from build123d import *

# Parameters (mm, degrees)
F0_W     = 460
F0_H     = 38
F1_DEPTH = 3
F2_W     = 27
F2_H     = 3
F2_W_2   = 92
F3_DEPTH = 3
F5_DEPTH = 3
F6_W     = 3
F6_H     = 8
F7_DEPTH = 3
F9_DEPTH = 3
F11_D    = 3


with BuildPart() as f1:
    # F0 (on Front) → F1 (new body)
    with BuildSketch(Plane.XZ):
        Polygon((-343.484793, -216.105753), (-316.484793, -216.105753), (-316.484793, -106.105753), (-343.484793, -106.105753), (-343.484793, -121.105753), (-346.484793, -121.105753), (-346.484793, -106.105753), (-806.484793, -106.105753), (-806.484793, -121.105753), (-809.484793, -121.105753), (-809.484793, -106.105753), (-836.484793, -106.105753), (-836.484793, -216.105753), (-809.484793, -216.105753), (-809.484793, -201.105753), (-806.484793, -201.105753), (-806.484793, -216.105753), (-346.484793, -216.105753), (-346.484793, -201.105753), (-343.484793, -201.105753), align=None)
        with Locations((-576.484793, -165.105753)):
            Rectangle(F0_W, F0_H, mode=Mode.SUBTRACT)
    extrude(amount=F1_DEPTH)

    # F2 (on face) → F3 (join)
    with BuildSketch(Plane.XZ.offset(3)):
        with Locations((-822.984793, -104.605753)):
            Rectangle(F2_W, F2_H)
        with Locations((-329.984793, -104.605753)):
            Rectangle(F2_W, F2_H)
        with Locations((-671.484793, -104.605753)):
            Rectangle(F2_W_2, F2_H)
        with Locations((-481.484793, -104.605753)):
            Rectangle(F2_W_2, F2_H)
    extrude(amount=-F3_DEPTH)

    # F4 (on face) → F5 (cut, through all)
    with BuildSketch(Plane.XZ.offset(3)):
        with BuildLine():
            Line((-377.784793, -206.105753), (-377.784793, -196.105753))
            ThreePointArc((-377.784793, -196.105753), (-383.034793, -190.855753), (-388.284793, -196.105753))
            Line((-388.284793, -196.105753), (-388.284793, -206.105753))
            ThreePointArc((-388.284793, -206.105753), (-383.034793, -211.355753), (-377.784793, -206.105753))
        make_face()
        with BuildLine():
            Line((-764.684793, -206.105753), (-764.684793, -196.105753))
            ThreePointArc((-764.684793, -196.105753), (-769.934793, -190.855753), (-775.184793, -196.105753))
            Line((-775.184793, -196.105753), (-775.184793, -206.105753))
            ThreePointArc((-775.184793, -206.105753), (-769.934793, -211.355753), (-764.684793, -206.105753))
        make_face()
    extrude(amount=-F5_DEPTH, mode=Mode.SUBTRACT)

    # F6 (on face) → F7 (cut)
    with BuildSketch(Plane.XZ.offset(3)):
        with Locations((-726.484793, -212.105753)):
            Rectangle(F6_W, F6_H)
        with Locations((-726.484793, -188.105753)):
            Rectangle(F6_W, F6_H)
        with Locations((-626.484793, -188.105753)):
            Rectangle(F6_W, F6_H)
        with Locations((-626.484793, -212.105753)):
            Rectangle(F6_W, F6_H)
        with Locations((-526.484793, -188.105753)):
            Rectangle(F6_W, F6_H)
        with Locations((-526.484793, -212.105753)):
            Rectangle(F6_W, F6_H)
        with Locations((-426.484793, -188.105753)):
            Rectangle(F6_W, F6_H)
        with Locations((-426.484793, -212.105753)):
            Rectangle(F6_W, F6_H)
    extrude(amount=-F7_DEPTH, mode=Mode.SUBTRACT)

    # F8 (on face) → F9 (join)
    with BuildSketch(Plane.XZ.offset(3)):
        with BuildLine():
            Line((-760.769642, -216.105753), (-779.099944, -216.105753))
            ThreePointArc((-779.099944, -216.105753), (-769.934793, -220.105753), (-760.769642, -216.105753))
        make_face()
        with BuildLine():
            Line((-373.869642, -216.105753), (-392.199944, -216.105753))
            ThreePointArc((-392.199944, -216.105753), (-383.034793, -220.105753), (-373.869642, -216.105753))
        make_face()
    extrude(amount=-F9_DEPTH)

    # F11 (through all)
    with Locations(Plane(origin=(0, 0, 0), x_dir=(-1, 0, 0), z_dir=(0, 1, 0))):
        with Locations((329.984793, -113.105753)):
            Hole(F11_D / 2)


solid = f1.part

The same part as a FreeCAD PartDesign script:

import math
import FreeCAD as App
import Part
import Sketcher
Q = App.Units.Quantity


def add_polygon(sketch, points):
    """Adds a closed chain of lines whose ends are joined by coincident constraints."""
    first, n = sketch.GeometryCount, len(points)
    for a, b in zip(points, points[1:] + points[:1]):
        sketch.addGeometry(Part.LineSegment(App.Vector(*a, 0), App.Vector(*b, 0)), False)
    for i in range(n):
        sketch.addConstraint(Sketcher.Constraint("Coincident", first + i, 2, first + (i + 1) % n, 1))

doc = App.newDocument("Part")
body = doc.addObject("PartDesign::Body", "Body")

# Sketch on XZ plane
sketch1 = body.newObject("Sketcher::SketchObject", "Sketch")
sketch1.AttachmentSupport = (doc.getObject("XZ_Plane"), [""])
sketch1.MapMode = "FlatFace"
add_polygon(sketch1, [(-343.484793, -216.105753), (-316.484793, -216.105753), (-316.484793, -106.105753), (-343.484793, -106.105753), (-343.484793, -121.105753), (-346.484793, -121.105753), (-346.484793, -106.105753), (-806.484793, -106.105753), (-806.484793, -121.105753), (-809.484793, -121.105753), (-809.484793, -106.105753), (-836.484793, -106.105753), (-836.484793, -216.105753), (-809.484793, -216.105753), (-809.484793, -201.105753), (-806.484793, -201.105753), (-806.484793, -216.105753), (-346.484793, -216.105753), (-346.484793, -201.105753), (-343.484793, -201.105753)])  # lines 0-19
add_polygon(sketch1, [(-346.484793, -184.105753), (-806.484793, -184.105753), (-806.484793, -146.105753), (-346.484793, -146.105753)])  # lines 20-23
sketch1.addConstraint([
    Sketcher.Constraint("Horizontal", 0),
    Sketcher.Constraint("Vertical", 1),
    Sketcher.Constraint("Horizontal", 2),
    Sketcher.Constraint("Vertical", 3),
    Sketcher.Constraint("Horizontal", 4),
    Sketcher.Constraint("Vertical", 5),
    Sketcher.Constraint("Horizontal", 6),
    Sketcher.Constraint("Vertical", 7),
    Sketcher.Constraint("Horizontal", 8),
    Sketcher.Constraint("Vertical", 9),
    Sketcher.Constraint("Horizontal", 10),
    Sketcher.Constraint("Vertical", 11),
    Sketcher.Constraint("Horizontal", 12),
    Sketcher.Constraint("Vertical", 13),
    Sketcher.Constraint("Horizontal", 14),
    Sketcher.Constraint("Vertical", 15),
    Sketcher.Constraint("Horizontal", 16),
    Sketcher.Constraint("Vertical", 17),
    Sketcher.Constraint("Horizontal", 18),
    Sketcher.Constraint("Vertical", 19),
    Sketcher.Constraint("Horizontal", 20),
    Sketcher.Constraint("Vertical", 21),
    Sketcher.Constraint("Horizontal", 22),
    Sketcher.Constraint("Vertical", 23),
    Sketcher.Constraint("Horizontal", 2, 2, 5, 2),
    Sketcher.Constraint("Horizontal", 4, 2, 7, 2),
    Sketcher.Constraint("Horizontal", 6, 2, 9, 2),
    Sketcher.Constraint("Horizontal", 0, 2, 11, 2),
    Sketcher.Constraint("Horizontal", 12, 2, 15, 2),
    Sketcher.Constraint("Horizontal", 14, 2, 17, 2),
    Sketcher.Constraint("Vertical", 9, 2, 12, 2),
    Sketcher.Constraint("Vertical", 7, 2, 14, 2),
    Sketcher.Constraint("Vertical", 5, 2, 16, 2),
    Sketcher.Constraint("Vertical", 3, 2, 18, 2),
    Sketcher.Constraint("Vertical", 15, 2, 20, 2),
    Sketcher.Constraint("Vertical", 17, 2, 22, 2),
    Sketcher.Constraint("Equal", 4, 8),
    Sketcher.Constraint("Equal", 2, 10),
    Sketcher.Constraint("Equal", 9, 13),
    Sketcher.Constraint("DistanceX", 0, 1, 0, 2, Q("27 mm")),
    Sketcher.Constraint("DistanceX", 4, 2, 4, 1, Q("3 mm")),
    Sketcher.Constraint("DistanceX", 6, 2, 6, 1, Q("460 mm")),
    Sketcher.Constraint("DistanceY", 1, 1, 1, 2, Q("110 mm")),
    Sketcher.Constraint("DistanceY", 3, 2, 3, 1, Q("15 mm")),
    Sketcher.Constraint("DistanceY", 21, 1, 21, 2, Q("38 mm")),
    Sketcher.Constraint("DistanceY", 14, 2, 20, 2, Q("17 mm")),
    Sketcher.Constraint("DistanceX", 0, 2, -1, 1, Q("316.484793 mm")),
    Sketcher.Constraint("DistanceY", 0, 2, -1, 1, Q("216.105753 mm")),
])
pad1 = body.newObject("PartDesign::Pad", "Pad")
pad1.Profile = sketch1
pad1.Length = 3

# Sketch on XZ plane
sketch2 = body.newObject("Sketcher::SketchObject", "Sketch001")
sketch2.AttachmentSupport = (doc.getObject("XZ_Plane"), [""])
sketch2.MapMode = "FlatFace"
sketch2.AttachmentOffset = App.Placement(App.Vector(0, 0, 3), App.Rotation())
add_polygon(sketch2, [(-836.484793, -103.105753), (-836.484793, -106.105753), (-809.484793, -106.105753), (-809.484793, -103.105753)])  # lines 0-3
add_polygon(sketch2, [(-343.484793, -103.105753), (-343.484793, -106.105753), (-316.484793, -106.105753), (-316.484793, -103.105753)])  # lines 4-7
add_polygon(sketch2, [(-717.484793, -103.105753), (-717.484793, -106.105753), (-625.484793, -106.105753), (-625.484793, -103.105753)])  # lines 8-11
add_polygon(sketch2, [(-527.484793, -103.105753), (-527.484793, -106.105753), (-435.484793, -106.105753), (-435.484793, -103.105753)])  # lines 12-15
sketch2.addConstraint([
    Sketcher.Constraint("Vertical", 0),
    Sketcher.Constraint("Horizontal", 1),
    Sketcher.Constraint("Vertical", 2),
    Sketcher.Constraint("Horizontal", 3),
    Sketcher.Constraint("Vertical", 4),
    Sketcher.Constraint("Horizontal", 5),
    Sketcher.Constraint("Vertical", 6),
    Sketcher.Constraint("Horizontal", 7),
    Sketcher.Constraint("Vertical", 8),
    Sketcher.Constraint("Horizontal", 9),
    Sketcher.Constraint("Vertical", 10),
    Sketcher.Constraint("Horizontal", 11),
    Sketcher.Constraint("Vertical", 12),
    Sketcher.Constraint("Horizontal", 13),
    Sketcher.Constraint("Vertical", 14),
    Sketcher.Constraint("Horizontal", 15),
    Sketcher.Constraint("Horizontal", 1, 2, 4, 2),
    Sketcher.Constraint("Horizontal", 3, 2, 6, 2),
    Sketcher.Constraint("Horizontal", 5, 2, 8, 2),
    Sketcher.Constraint("Horizontal", 7, 2, 10, 2),
    Sketcher.Constraint("Horizontal", 9, 2, 12, 2),
    Sketcher.Constraint("Horizontal", 11, 2, 14, 2),
    Sketcher.Constraint("Equal", 3, 5),
    Sketcher.Constraint("Equal", 11, 13),
    Sketcher.Constraint("DistanceX", 1, 1, 1, 2, Q("27 mm")),
    Sketcher.Constraint("DistanceX", 9, 1, 9, 2, Q("92 mm")),
    Sketcher.Constraint("DistanceY", 0, 2, 0, 1, Q("3 mm")),
    Sketcher.Constraint("DistanceX", 1, 2, 4, 2, Q("466 mm")),
    Sketcher.Constraint("DistanceX", 1, 2, 8, 2, Q("92 mm")),
    Sketcher.Constraint("DistanceX", 9, 2, 12, 2, Q("98 mm")),
    Sketcher.Constraint("DistanceX", 0, 2, -1, 1, Q("836.484793 mm")),
    Sketcher.Constraint("DistanceY", 0, 2, -1, 1, Q("106.105753 mm")),
])
pad2 = body.newObject("PartDesign::Pad", "Pad001")
pad2.Profile = sketch2
pad2.Length = 3
pad2.Reversed = True

# Sketch on XZ plane
sketch3 = body.newObject("Sketcher::SketchObject", "Sketch002")
sketch3.AttachmentSupport = (doc.getObject("XZ_Plane"), [""])
sketch3.MapMode = "FlatFace"
sketch3.AttachmentOffset = App.Placement(App.Vector(0, 0, 3), App.Rotation())
sketch3.addGeometry([
    Part.LineSegment(App.Vector(-377.784793, -206.105753, 0), App.Vector(-377.784793, -196.105753, 0)),  # 0
    Part.ArcOfCircle(Part.Circle(App.Vector(-383.034793, -196.105753, 0), App.Vector(0, 0, 1), 5.25), math.radians(0), math.radians(180)),  # 1
    Part.LineSegment(App.Vector(-388.284793, -196.105753, 0), App.Vector(-388.284793, -206.105753, 0)),  # 2
    Part.ArcOfCircle(Part.Circle(App.Vector(-383.034793, -206.105753, 0), App.Vector(0, 0, 1), 5.25), math.radians(180), math.radians(360)),  # 3
    Part.LineSegment(App.Vector(-764.684793, -206.105753, 0), App.Vector(-764.684793, -196.105753, 0)),  # 4
    Part.ArcOfCircle(Part.Circle(App.Vector(-769.934793, -196.105753, 0), App.Vector(0, 0, 1), 5.25), math.radians(0), math.radians(180)),  # 5
    Part.LineSegment(App.Vector(-775.184793, -196.105753, 0), App.Vector(-775.184793, -206.105753, 0)),  # 6
    Part.ArcOfCircle(Part.Circle(App.Vector(-769.934793, -206.105753, 0), App.Vector(0, 0, 1), 5.25), math.radians(180), math.radians(360)),  # 7
], False)
sketch3.addConstraint([
    Sketcher.Constraint("Tangent", 0, 2, 1, 1),
    Sketcher.Constraint("Tangent", 1, 2, 2, 1),
    Sketcher.Constraint("Tangent", 2, 2, 3, 1),
    Sketcher.Constraint("Tangent", 3, 2, 0, 1),
    Sketcher.Constraint("Tangent", 4, 2, 5, 1),
    Sketcher.Constraint("Tangent", 5, 2, 6, 1),
    Sketcher.Constraint("Tangent", 6, 2, 7, 1),
    Sketcher.Constraint("Tangent", 7, 2, 4, 1),
    Sketcher.Constraint("Vertical", 0),
    Sketcher.Constraint("Vertical", 2),
    Sketcher.Constraint("Vertical", 4),
    Sketcher.Constraint("Vertical", 6),
    Sketcher.Constraint("Equal", 3, 5),
    Sketcher.Constraint("Horizontal", 1, 3, 5, 3),
    Sketcher.Constraint("Horizontal", 3, 3, 7, 3),
    Sketcher.Constraint("DistanceY", 0, 1, 0, 2, Q("10 mm")),
    Sketcher.Constraint("Radius", 1, Q("5.25 mm")),
    Sketcher.Constraint("DistanceX", 5, 3, 1, 3, Q("386.9 mm")),
    Sketcher.Constraint("DistanceX", 1, 3, -1, 1, Q("383.034793 mm")),
    Sketcher.Constraint("DistanceY", 1, 3, -1, 1, Q("196.105753 mm")),
])
pocket1 = body.newObject("PartDesign::Pocket", "Pocket")
pocket1.Profile = sketch3
pocket1.Type = "ThroughAll"

# Sketch on XZ plane
sketch4 = body.newObject("Sketcher::SketchObject", "Sketch003")
sketch4.AttachmentSupport = (doc.getObject("XZ_Plane"), [""])
sketch4.MapMode = "FlatFace"
sketch4.AttachmentOffset = App.Placement(App.Vector(0, 0, 3), App.Rotation())
add_polygon(sketch4, [(-727.984793, -208.105753), (-727.984793, -216.105753), (-724.984793, -216.105753), (-724.984793, -208.105753)])  # lines 0-3
add_polygon(sketch4, [(-727.984793, -184.105753), (-727.984793, -192.105753), (-724.984793, -192.105753), (-724.984793, -184.105753)])  # lines 4-7
add_polygon(sketch4, [(-627.984793, -184.105753), (-627.984793, -192.105753), (-624.984793, -192.105753), (-624.984793, -184.105753)])  # lines 8-11
add_polygon(sketch4, [(-627.984793, -208.105753), (-627.984793, -216.105753), (-624.984793, -216.105753), (-624.984793, -208.105753)])  # lines 12-15
add_polygon(sketch4, [(-527.984793, -184.105753), (-527.984793, -192.105753), (-524.984793, -192.105753), (-524.984793, -184.105753)])  # lines 16-19
add_polygon(sketch4, [(-527.984793, -208.105753), (-527.984793, -216.105753), (-524.984793, -216.105753), (-524.984793, -208.105753)])  # lines 20-23
add_polygon(sketch4, [(-427.984793, -184.105753), (-427.984793, -192.105753), (-424.984793, -192.105753), (-424.984793, -184.105753)])  # lines 24-27
add_polygon(sketch4, [(-427.984793, -208.105753), (-427.984793, -216.105753), (-424.984793, -216.105753), (-424.984793, -208.105753)])  # lines 28-31
sketch4.addConstraint([
    Sketcher.Constraint("Vertical", 0),
    Sketcher.Constraint("Horizontal", 1),
    Sketcher.Constraint("Vertical", 2),
    Sketcher.Constraint("Horizontal", 3),
    Sketcher.Constraint("Vertical", 4),
    Sketcher.Constraint("Horizontal", 5),
    Sketcher.Constraint("Vertical", 6),
    Sketcher.Constraint("Horizontal", 7),
    Sketcher.Constraint("Vertical", 8),
    Sketcher.Constraint("Horizontal", 9),
    Sketcher.Constraint("Vertical", 10),
    Sketcher.Constraint("Horizontal", 11),
    Sketcher.Constraint("Vertical", 12),
    Sketcher.Constraint("Horizontal", 13),
    Sketcher.Constraint("Vertical", 14),
    Sketcher.Constraint("Horizontal", 15),
    Sketcher.Constraint("Vertical", 16),
    Sketcher.Constraint("Horizontal", 17),
    Sketcher.Constraint("Vertical", 18),
    Sketcher.Constraint("Horizontal", 19),
    Sketcher.Constraint("Vertical", 20),
    Sketcher.Constraint("Horizontal", 21),
    Sketcher.Constraint("Vertical", 22),
    Sketcher.Constraint("Horizontal", 23),
    Sketcher.Constraint("Vertical", 24),
    Sketcher.Constraint("Horizontal", 25),
    Sketcher.Constraint("Vertical", 26),
    Sketcher.Constraint("Horizontal", 27),
    Sketcher.Constraint("Vertical", 28),
    Sketcher.Constraint("Horizontal", 29),
    Sketcher.Constraint("Vertical", 30),
    Sketcher.Constraint("Horizontal", 31),
    Sketcher.Constraint("Horizontal", 5, 2, 8, 2),
    Sketcher.Constraint("Horizontal", 7, 2, 10, 2),
    Sketcher.Constraint("Horizontal", 1, 2, 12, 2),
    Sketcher.Constraint("Horizontal", 3, 2, 14, 2),
    Sketcher.Constraint("Horizontal", 9, 2, 16, 2),
    Sketcher.Constraint("Horizontal", 11, 2, 18, 2),
    Sketcher.Constraint("Horizontal", 13, 2, 20, 2),
    Sketcher.Constraint("Horizontal", 15, 2, 22, 2),
    Sketcher.Constraint("Horizontal", 17, 2, 24, 2),
    Sketcher.Constraint("Horizontal", 19, 2, 26, 2),
    Sketcher.Constraint("Horizontal", 21, 2, 28, 2),
    Sketcher.Constraint("Horizontal", 23, 2, 30, 2),
    Sketcher.Constraint("Vertical", 3, 2, 4, 2),
    Sketcher.Constraint("Vertical", 2, 2, 5, 2),
    Sketcher.Constraint("Vertical", 11, 2, 12, 2),
    Sketcher.Constraint("Vertical", 10, 2, 13, 2),
    Sketcher.Constraint("Vertical", 19, 2, 20, 2),
    Sketcher.Constraint("Vertical", 18, 2, 21, 2),
    Sketcher.Constraint("Vertical", 27, 2, 28, 2),
    Sketcher.Constraint("Vertical", 26, 2, 29, 2),
    Sketcher.Constraint("Equal", 7, 9),
    Sketcher.Constraint("Equal", 15, 17),
    Sketcher.Constraint("Equal", 23, 25),
    Sketcher.Constraint("Equal", 2, 4),
    Sketcher.Constraint("DistanceX", 1, 1, 1, 2, Q("3 mm")),
    Sketcher.Constraint("DistanceY", 0, 2, 0, 1, Q("8 mm")),
    Sketcher.Constraint("DistanceY", 3, 2, 4, 2, Q("16 mm")),
    Sketcher.Constraint("DistanceX", 5, 2, 8, 2, Q("97 mm")),
    Sketcher.Constraint("DistanceX", 9, 2, 16, 2, Q("97 mm")),
    Sketcher.Constraint("DistanceX", 17, 2, 24, 2, Q("97 mm")),
    Sketcher.Constraint("DistanceX", 0, 2, -1, 1, Q("727.984793 mm")),
    Sketcher.Constraint("DistanceY", 0, 2, -1, 1, Q("216.105753 mm")),
])
pocket2 = body.newObject("PartDesign::Pocket", "Pocket001")
pocket2.Profile = sketch4
pocket2.Length = 3

# Sketch on XZ plane
sketch5 = body.newObject("Sketcher::SketchObject", "Sketch004")
sketch5.AttachmentSupport = (doc.getObject("XZ_Plane"), [""])
sketch5.MapMode = "FlatFace"
sketch5.AttachmentOffset = App.Placement(App.Vector(0, 0, 3), App.Rotation())
sketch5.addGeometry([
    Part.LineSegment(App.Vector(-760.769642, -216.105753, 0), App.Vector(-779.099944, -216.105753, 0)),
    Part.ArcOfCircle(Part.Circle(App.Vector(-769.934793, -207.605754, 0), App.Vector(0, 0, 1), 12.499999), math.radians(-137.156359), math.radians(-42.843641)),
    Part.LineSegment(App.Vector(-373.869642, -216.105753, 0), App.Vector(-392.199944, -216.105753, 0)),
    Part.ArcOfCircle(Part.Circle(App.Vector(-383.034793, -207.605754, 0), App.Vector(0, 0, 1), 12.499999), math.radians(-137.156359), math.radians(-42.843641)),
], False)
sketch5.addConstraint([
    Sketcher.Constraint("Coincident", 0, 1, 1, 2),
    Sketcher.Constraint("Coincident", 1, 1, 0, 2),
    Sketcher.Constraint("Coincident", 2, 1, 3, 2),
    Sketcher.Constraint("Coincident", 3, 1, 2, 2),
    Sketcher.Constraint("Horizontal", 0),
    Sketcher.Constraint("Horizontal", 2),
    Sketcher.Constraint("Equal", 1, 3),
    Sketcher.Constraint("Horizontal", 1, 3, 3, 3),
    Sketcher.Constraint("Horizontal", 1, 1, 2, 1),
    Sketcher.Constraint("Radius", 1, Q("12.499999 mm")),
    Sketcher.Constraint("DistanceX", 1, 3, 3, 3, Q("386.9 mm")),
    Sketcher.Constraint("DistanceY", 0, 1, 1, 3, Q("8.499999 mm")),
    Sketcher.Constraint("DistanceX", 0, 1, -1, 1, Q("760.769642 mm")),
    Sketcher.Constraint("DistanceY", 1, 3, -1, 1, Q("207.605754 mm")),
])
pad3 = body.newObject("PartDesign::Pad", "Pad002")
pad3.Profile = sketch5
pad3.Length = 3
pad3.Reversed = True

# Sketch on XZ plane
sketch6 = body.newObject("Sketcher::SketchObject", "Sketch005")
sketch6.AttachmentSupport = (doc.getObject("XZ_Plane"), [""])
sketch6.MapMode = "FlatFace"
sketch6.addGeometry(Part.Circle(App.Vector(-329.984793, -113.105753, 0), App.Vector(0, 0, 1), 1.5), False)
sketch6.addConstraint([
    Sketcher.Constraint("Diameter", 0, Q("3 mm")),
    Sketcher.Constraint("DistanceX", 0, 3, -1, 1, Q("329.984793 mm")),
    Sketcher.Constraint("DistanceY", 0, 3, -1, 1, Q("113.105753 mm")),
])
doc.recompute()
hole = body.newObject("PartDesign::Hole", "Hole")
hole.Profile = sketch6
hole.ThreadType = "None"
hole.Diameter = 3
hole.DepthType = "ThroughAll"
hole.Reversed = True

doc.recompute()
